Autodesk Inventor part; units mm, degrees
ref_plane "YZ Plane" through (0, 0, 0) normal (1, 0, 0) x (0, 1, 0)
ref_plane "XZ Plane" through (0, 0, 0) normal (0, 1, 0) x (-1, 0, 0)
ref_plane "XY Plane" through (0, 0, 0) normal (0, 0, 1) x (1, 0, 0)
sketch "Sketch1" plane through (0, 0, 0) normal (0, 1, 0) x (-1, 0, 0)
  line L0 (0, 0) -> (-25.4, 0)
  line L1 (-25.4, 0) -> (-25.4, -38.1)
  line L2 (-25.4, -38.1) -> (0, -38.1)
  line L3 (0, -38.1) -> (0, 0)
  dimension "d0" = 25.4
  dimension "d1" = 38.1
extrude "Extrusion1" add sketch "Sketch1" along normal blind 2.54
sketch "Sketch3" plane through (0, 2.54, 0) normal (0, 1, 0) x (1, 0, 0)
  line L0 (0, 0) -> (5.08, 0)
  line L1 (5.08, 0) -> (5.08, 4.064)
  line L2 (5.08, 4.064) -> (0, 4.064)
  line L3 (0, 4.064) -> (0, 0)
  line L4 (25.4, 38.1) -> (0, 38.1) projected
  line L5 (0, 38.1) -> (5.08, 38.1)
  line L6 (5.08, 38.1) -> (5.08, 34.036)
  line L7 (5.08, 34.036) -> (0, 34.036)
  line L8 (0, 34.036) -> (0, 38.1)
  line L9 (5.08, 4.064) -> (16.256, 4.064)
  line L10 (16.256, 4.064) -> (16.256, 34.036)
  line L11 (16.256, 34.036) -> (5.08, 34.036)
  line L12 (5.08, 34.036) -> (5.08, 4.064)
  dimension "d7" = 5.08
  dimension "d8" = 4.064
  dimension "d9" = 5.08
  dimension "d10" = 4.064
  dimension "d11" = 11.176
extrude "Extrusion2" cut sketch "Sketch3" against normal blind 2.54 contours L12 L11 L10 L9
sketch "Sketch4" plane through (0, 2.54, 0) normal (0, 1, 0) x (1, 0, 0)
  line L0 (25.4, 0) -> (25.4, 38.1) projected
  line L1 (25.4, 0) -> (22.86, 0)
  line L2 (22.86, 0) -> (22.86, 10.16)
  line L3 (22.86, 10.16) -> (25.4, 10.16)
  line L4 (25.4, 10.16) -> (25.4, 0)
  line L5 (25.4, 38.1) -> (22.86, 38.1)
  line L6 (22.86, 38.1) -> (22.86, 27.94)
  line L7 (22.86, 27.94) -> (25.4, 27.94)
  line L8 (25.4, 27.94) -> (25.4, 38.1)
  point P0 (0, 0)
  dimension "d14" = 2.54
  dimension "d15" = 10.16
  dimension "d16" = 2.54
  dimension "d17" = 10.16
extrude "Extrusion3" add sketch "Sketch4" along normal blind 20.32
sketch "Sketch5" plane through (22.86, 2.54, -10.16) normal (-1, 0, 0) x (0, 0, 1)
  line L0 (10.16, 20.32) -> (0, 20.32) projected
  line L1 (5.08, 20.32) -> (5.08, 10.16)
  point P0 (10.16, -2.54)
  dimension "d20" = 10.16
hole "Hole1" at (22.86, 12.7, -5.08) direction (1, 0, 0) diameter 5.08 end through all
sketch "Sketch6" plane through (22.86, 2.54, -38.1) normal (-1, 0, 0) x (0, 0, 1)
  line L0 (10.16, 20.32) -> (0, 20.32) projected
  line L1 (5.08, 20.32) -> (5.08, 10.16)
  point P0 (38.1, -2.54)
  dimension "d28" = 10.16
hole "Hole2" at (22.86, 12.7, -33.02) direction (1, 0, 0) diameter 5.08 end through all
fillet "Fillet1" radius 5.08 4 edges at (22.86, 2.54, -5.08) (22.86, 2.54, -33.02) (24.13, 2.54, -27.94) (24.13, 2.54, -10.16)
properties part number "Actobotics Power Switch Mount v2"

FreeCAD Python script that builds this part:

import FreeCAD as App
import Part
import Sketcher
Q = App.Units.Quantity


def edges_at(feature, points):
    """Names of the edges that pass closest to the given points."""
    edges = feature.Shape.Edges
    near = lambda p: min(range(len(edges)), key=lambda i: edges[i].distToShape(Part.Vertex(*p))[0])
    return sorted({f"Edge{near(p) + 1}" for p in points})

doc = App.newDocument("Part")
body = doc.addObject("PartDesign::Body", "Body")

sketch1 = body.newObject("Sketcher::SketchObject", "Sketch")
sketch1.AttachmentSupport = (doc.getObject("XZ_Plane"), [""])
sketch1.MapMode = "FlatFace"
sketch1.addGeometry([
    Part.LineSegment(App.Vector(0, -38, 0), App.Vector(0, 0, 0)),
    Part.LineSegment(App.Vector(0, 0, 0), App.Vector(25, 0, 0)),
    Part.LineSegment(App.Vector(25, 0, 0), App.Vector(25, -38, 0)),
    Part.LineSegment(App.Vector(25, -38, 0), App.Vector(0, -38, 0)),
], False)
sketch1.addConstraint([
    Sketcher.Constraint("Coincident", 0, 2, 1, 1),
    Sketcher.Constraint("Coincident", 1, 2, 2, 1),
    Sketcher.Constraint("Coincident", 2, 2, 3, 1),
    Sketcher.Constraint("Coincident", 3, 2, 0, 1),
    Sketcher.Constraint("Vertical", 0),
    Sketcher.Constraint("Horizontal", 1),
    Sketcher.Constraint("Vertical", 2),
    Sketcher.Constraint("Horizontal", 3),
    Sketcher.Constraint("Coincident", 0, 2, -1, 1),
    Sketcher.Constraint("DistanceX", 1, 1, 1, 2, Q("1 in")),
    Sketcher.Constraint("DistanceY", 0, 1, 0, 2, Q("1.5 in")),
])
pad1 = body.newObject("PartDesign::Pad", "Pad")
pad1.Profile = sketch1
pad1.Length = Q("0.1 in")
pad1.Reversed = True

sketch2 = body.newObject("Sketcher::SketchObject", "Sketch001")
sketch2.AttachmentSupport = (doc.getObject("XZ_Plane"), [""])
sketch2.MapMode = "FlatFace"
sketch2.AttachmentOffset = App.Placement(App.Vector(0, 0, -0.1 * 25.4), App.Rotation())
sketch2.addGeometry([
    Part.LineSegment(App.Vector(5, -34, 0), App.Vector(5, -4, 0)),
    Part.LineSegment(App.Vector(5, -4, 0), App.Vector(16, -4, 0)),
    Part.LineSegment(App.Vector(16, -4, 0), App.Vector(16, -34, 0)),
    Part.LineSegment(App.Vector(16, -34, 0), App.Vector(5, -34, 0)),
], False)
sketch2.addConstraint([
    Sketcher.Constraint("Coincident", 0, 2, 1, 1),
    Sketcher.Constraint("Coincident", 1, 2, 2, 1),
    Sketcher.Constraint("Coincident", 2, 2, 3, 1),
    Sketcher.Constraint("Coincident", 3, 2, 0, 1),
    Sketcher.Constraint("Vertical", 0),
    Sketcher.Constraint("Horizontal", 1),
    Sketcher.Constraint("Vertical", 2),
    Sketcher.Constraint("Horizontal", 3),
    Sketcher.Constraint("DistanceX", 1, 1, 1, 2, Q("0.44 in")),
    Sketcher.Constraint("DistanceX", -1, 1, 0, 2, Q("0.2 in")),
    Sketcher.Constraint("DistanceY", 0, 2, -1, 1, Q("0.16 in")),
    Sketcher.Constraint("DistanceY", 0, 1, 0, 2, Q("1.18 in")),
])
pocket1 = body.newObject("PartDesign::Pocket", "Pocket")
pocket1.Profile = sketch2
pocket1.Length = Q("0.1 in")
pocket1.Reversed = True

sketch3 = body.newObject("Sketcher::SketchObject", "Sketch002")
sketch3.AttachmentSupport = (doc.getObject("XZ_Plane"), [""])
sketch3.MapMode = "FlatFace"
sketch3.AttachmentOffset = App.Placement(App.Vector(0, 0, -0.1 * 25.4), App.Rotation())
sketch3.addGeometry([
    Part.LineSegment(App.Vector(22.9, 0, 0), App.Vector(25.4, 0, 0)),
    Part.LineSegment(App.Vector(25.4, 0, 0), App.Vector(25.4, -10.2, 0)),
    Part.LineSegment(App.Vector(25.4, -10.2, 0), App.Vector(22.9, -10.2, 0)),
    Part.LineSegment(App.Vector(22.9, -10.2, 0), App.Vector(22.9, 0, 0)),
    Part.LineSegment(App.Vector(22.9, -27.9, 0), App.Vector(25.4, -27.9, 0)),
    Part.LineSegment(App.Vector(25.4, -27.9, 0), App.Vector(25.4, -38.1, 0)),
    Part.LineSegment(App.Vector(25.4, -38.1, 0), App.Vector(22.9, -38.1, 0)),
    Part.LineSegment(App.Vector(22.9, -38.1, 0), App.Vector(22.9, -27.9, 0)),
], False)
sketch3.addConstraint([
    Sketcher.Constraint("Coincident", 0, 2, 1, 1),
    Sketcher.Constraint("Coincident", 1, 2, 2, 1),
    Sketcher.Constraint("Coincident", 2, 2, 3, 1),
    Sketcher.Constraint("Coincident", 3, 2, 0, 1),
    Sketcher.Constraint("Coincident", 4, 2, 5, 1),
    Sketcher.Constraint("Coincident", 5, 2, 6, 1),
    Sketcher.Constraint("Coincident", 6, 2, 7, 1),
    Sketcher.Constraint("Coincident", 7, 2, 4, 1),
    Sketcher.Constraint("Horizontal", 0),
    Sketcher.Constraint("Vertical", 1),
    Sketcher.Constraint("Horizontal", 2),
    Sketcher.Constraint("Vertical", 3),
    Sketcher.Constraint("Horizontal", 4),
    Sketcher.Constraint("Vertical", 5),
    Sketcher.Constraint("Horizontal", 6),
    Sketcher.Constraint("Vertical", 7),
    Sketcher.Constraint("PointOnObject", 0, 2, -1),
    Sketcher.Constraint("Vertical", 1, 2, 4, 2),
    Sketcher.Constraint("Vertical", 3, 2, 6, 2),
    Sketcher.Constraint("Equal", 3, 5),
    Sketcher.Constraint("DistanceX", 0, 1, 0, 2, Q("0.1 in")),
    Sketcher.Constraint("DistanceY", 1, 2, 1, 1, Q("0.4 in")),
    Sketcher.Constraint("DistanceX", -1, 1, 0, 2, Q("1 in")),
    Sketcher.Constraint("DistanceY", 4, 2, -1, 1, Q("1.1 in")),
])
pad2 = body.newObject("PartDesign::Pad", "Pad001")
pad2.Profile = sketch3
pad2.Length = Q("0.8 in")
pad2.Reversed = True

sketch4 = body.newObject("Sketcher::SketchObject", "Sketch003")
sketch4.AttachmentSupport = (doc.getObject("YZ_Plane"), [""])
sketch4.MapMode = "FlatFace"
sketch4.AttachmentOffset = App.Placement(App.Vector(0, 0, 0.9 * 25.4), App.Rotation())
sketch4.addGeometry(Part.Circle(App.Vector(12.7, -5.1, 0), App.Vector(0, 0, 1), 2.5), False)
sketch4.addConstraint([
    Sketcher.Constraint("Diameter", 0, Q("0.2 in")),
    Sketcher.Constraint("DistanceX", -1, 1, 0, 3, Q("0.5 in")),
    Sketcher.Constraint("DistanceY", 0, 3, -1, 1, Q("0.2 in")),
])
doc.recompute()
hole = body.newObject("PartDesign::Hole", "Hole")
hole.Profile = sketch4
hole.ThreadType = "None"
hole.Diameter = Q("0.2 in")
hole.DepthType = "ThroughAll"
hole.Reversed = True

sketch5 = body.newObject("Sketcher::SketchObject", "Sketch004")
sketch5.AttachmentSupport = (doc.getObject("YZ_Plane"), [""])
sketch5.MapMode = "FlatFace"
sketch5.AttachmentOffset = App.Placement(App.Vector(0, 0, 0.9 * 25.4), App.Rotation())
sketch5.addGeometry(Part.Circle(App.Vector(12.7, -33, 0), App.Vector(0, 0, 1), 2.5), False)
sketch5.addConstraint([
    Sketcher.Constraint("Diameter", 0, Q("0.2 in")),
    Sketcher.Constraint("DistanceX", -1, 1, 0, 3, Q("0.5 in")),
    Sketcher.Constraint("DistanceY", 0, 3, -1, 1, Q("1.3 in")),
])
doc.recompute()
hole2 = body.newObject("PartDesign::Hole", "Hole001")
hole2.Profile = sketch5
hole2.ThreadType = "None"
hole2.Diameter = Q("0.2 in")
hole2.DepthType = "ThroughAll"
hole2.Reversed = True
doc.recompute()

fillet = body.newObject("PartDesign::Fillet", "Fillet")
fillet.Base = (hole2, edges_at(hole2, [
    (22.86, 2.54, -5.08),
    (22.86, 2.54, -33.02),
    (24.13, 2.54, -27.94),
    (24.13, 2.54, -10.16),
]))
fillet.Radius = Q("0.2 in")

doc.recompute()
